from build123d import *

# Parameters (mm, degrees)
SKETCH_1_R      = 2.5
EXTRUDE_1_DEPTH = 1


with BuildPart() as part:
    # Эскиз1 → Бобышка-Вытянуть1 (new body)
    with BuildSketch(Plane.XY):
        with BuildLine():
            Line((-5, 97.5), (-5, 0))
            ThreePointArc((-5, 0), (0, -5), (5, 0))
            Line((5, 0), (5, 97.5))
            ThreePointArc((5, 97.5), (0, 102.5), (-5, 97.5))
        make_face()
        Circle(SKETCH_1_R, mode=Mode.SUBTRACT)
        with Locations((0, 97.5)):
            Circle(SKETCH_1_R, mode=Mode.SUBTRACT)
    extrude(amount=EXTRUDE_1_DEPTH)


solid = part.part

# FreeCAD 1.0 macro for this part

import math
import FreeCAD as App
import Part
import Sketcher

V = App.Vector

doc = App.newDocument("Part")
body = doc.addObject("PartDesign::Body", "Body")

# Sketch on XY plane
sketch1 = doc.addObject("Sketcher::SketchObject", "Sketch")
body.addObject(sketch1)
sketch1.AttachmentSupport = (doc.XY_Plane, [""])
sketch1.MapMode = "FlatFace"
sketch1.addGeometry([
    Part.LineSegment(V(-5, 97.5, 0), V(-5, 0, 0)),  # 0
    Part.ArcOfCircle(Part.Circle(V(0, 0, 0), V(0, 0, 1), 5), math.radians(180), math.radians(360)),  # 1
    Part.LineSegment(V(5, 0, 0), V(5, 97.5, 0)),  # 2
    Part.ArcOfCircle(Part.Circle(V(0, 97.5, 0), V(0, 0, 1), 5), math.radians(0), math.radians(180)),  # 3
    Part.Circle(V(0, 0, 0), V(0, 0, 1), 2.5),  # 4
    Part.Circle(V(0, 97.5, 0), V(0, 0, 1), 2.5),  # 5
], False)
sketch1.addConstraint([
    Sketcher.Constraint("Tangent", 0, 2, 1, 1),
    Sketcher.Constraint("Tangent", 1, 2, 2, 1),
    Sketcher.Constraint("Tangent", 2, 2, 3, 1),
    Sketcher.Constraint("Tangent", 3, 2, 0, 1),
    Sketcher.Constraint("Vertical", 0),
    Sketcher.Constraint("Vertical", 2),
    Sketcher.Constraint("Coincident", 1, 3, -1, 1),
    Sketcher.Constraint("Coincident", 4, 3, -1, 1),
    Sketcher.Constraint("Coincident", 5, 3, 3, 3),
    Sketcher.Constraint("Equal", 4, 5),
    Sketcher.Constraint("Diameter", 4, 5.0),
    Sketcher.Constraint("Radius", 1, 5.0),
    Sketcher.Constraint("DistanceY", 0, 2, 0, 1, 97.5),
])
pad1 = doc.addObject("PartDesign::Pad", "Pad")
body.addObject(pad1)
pad1.Profile = sketch1
pad1.Length = 1

doc.recompute()
